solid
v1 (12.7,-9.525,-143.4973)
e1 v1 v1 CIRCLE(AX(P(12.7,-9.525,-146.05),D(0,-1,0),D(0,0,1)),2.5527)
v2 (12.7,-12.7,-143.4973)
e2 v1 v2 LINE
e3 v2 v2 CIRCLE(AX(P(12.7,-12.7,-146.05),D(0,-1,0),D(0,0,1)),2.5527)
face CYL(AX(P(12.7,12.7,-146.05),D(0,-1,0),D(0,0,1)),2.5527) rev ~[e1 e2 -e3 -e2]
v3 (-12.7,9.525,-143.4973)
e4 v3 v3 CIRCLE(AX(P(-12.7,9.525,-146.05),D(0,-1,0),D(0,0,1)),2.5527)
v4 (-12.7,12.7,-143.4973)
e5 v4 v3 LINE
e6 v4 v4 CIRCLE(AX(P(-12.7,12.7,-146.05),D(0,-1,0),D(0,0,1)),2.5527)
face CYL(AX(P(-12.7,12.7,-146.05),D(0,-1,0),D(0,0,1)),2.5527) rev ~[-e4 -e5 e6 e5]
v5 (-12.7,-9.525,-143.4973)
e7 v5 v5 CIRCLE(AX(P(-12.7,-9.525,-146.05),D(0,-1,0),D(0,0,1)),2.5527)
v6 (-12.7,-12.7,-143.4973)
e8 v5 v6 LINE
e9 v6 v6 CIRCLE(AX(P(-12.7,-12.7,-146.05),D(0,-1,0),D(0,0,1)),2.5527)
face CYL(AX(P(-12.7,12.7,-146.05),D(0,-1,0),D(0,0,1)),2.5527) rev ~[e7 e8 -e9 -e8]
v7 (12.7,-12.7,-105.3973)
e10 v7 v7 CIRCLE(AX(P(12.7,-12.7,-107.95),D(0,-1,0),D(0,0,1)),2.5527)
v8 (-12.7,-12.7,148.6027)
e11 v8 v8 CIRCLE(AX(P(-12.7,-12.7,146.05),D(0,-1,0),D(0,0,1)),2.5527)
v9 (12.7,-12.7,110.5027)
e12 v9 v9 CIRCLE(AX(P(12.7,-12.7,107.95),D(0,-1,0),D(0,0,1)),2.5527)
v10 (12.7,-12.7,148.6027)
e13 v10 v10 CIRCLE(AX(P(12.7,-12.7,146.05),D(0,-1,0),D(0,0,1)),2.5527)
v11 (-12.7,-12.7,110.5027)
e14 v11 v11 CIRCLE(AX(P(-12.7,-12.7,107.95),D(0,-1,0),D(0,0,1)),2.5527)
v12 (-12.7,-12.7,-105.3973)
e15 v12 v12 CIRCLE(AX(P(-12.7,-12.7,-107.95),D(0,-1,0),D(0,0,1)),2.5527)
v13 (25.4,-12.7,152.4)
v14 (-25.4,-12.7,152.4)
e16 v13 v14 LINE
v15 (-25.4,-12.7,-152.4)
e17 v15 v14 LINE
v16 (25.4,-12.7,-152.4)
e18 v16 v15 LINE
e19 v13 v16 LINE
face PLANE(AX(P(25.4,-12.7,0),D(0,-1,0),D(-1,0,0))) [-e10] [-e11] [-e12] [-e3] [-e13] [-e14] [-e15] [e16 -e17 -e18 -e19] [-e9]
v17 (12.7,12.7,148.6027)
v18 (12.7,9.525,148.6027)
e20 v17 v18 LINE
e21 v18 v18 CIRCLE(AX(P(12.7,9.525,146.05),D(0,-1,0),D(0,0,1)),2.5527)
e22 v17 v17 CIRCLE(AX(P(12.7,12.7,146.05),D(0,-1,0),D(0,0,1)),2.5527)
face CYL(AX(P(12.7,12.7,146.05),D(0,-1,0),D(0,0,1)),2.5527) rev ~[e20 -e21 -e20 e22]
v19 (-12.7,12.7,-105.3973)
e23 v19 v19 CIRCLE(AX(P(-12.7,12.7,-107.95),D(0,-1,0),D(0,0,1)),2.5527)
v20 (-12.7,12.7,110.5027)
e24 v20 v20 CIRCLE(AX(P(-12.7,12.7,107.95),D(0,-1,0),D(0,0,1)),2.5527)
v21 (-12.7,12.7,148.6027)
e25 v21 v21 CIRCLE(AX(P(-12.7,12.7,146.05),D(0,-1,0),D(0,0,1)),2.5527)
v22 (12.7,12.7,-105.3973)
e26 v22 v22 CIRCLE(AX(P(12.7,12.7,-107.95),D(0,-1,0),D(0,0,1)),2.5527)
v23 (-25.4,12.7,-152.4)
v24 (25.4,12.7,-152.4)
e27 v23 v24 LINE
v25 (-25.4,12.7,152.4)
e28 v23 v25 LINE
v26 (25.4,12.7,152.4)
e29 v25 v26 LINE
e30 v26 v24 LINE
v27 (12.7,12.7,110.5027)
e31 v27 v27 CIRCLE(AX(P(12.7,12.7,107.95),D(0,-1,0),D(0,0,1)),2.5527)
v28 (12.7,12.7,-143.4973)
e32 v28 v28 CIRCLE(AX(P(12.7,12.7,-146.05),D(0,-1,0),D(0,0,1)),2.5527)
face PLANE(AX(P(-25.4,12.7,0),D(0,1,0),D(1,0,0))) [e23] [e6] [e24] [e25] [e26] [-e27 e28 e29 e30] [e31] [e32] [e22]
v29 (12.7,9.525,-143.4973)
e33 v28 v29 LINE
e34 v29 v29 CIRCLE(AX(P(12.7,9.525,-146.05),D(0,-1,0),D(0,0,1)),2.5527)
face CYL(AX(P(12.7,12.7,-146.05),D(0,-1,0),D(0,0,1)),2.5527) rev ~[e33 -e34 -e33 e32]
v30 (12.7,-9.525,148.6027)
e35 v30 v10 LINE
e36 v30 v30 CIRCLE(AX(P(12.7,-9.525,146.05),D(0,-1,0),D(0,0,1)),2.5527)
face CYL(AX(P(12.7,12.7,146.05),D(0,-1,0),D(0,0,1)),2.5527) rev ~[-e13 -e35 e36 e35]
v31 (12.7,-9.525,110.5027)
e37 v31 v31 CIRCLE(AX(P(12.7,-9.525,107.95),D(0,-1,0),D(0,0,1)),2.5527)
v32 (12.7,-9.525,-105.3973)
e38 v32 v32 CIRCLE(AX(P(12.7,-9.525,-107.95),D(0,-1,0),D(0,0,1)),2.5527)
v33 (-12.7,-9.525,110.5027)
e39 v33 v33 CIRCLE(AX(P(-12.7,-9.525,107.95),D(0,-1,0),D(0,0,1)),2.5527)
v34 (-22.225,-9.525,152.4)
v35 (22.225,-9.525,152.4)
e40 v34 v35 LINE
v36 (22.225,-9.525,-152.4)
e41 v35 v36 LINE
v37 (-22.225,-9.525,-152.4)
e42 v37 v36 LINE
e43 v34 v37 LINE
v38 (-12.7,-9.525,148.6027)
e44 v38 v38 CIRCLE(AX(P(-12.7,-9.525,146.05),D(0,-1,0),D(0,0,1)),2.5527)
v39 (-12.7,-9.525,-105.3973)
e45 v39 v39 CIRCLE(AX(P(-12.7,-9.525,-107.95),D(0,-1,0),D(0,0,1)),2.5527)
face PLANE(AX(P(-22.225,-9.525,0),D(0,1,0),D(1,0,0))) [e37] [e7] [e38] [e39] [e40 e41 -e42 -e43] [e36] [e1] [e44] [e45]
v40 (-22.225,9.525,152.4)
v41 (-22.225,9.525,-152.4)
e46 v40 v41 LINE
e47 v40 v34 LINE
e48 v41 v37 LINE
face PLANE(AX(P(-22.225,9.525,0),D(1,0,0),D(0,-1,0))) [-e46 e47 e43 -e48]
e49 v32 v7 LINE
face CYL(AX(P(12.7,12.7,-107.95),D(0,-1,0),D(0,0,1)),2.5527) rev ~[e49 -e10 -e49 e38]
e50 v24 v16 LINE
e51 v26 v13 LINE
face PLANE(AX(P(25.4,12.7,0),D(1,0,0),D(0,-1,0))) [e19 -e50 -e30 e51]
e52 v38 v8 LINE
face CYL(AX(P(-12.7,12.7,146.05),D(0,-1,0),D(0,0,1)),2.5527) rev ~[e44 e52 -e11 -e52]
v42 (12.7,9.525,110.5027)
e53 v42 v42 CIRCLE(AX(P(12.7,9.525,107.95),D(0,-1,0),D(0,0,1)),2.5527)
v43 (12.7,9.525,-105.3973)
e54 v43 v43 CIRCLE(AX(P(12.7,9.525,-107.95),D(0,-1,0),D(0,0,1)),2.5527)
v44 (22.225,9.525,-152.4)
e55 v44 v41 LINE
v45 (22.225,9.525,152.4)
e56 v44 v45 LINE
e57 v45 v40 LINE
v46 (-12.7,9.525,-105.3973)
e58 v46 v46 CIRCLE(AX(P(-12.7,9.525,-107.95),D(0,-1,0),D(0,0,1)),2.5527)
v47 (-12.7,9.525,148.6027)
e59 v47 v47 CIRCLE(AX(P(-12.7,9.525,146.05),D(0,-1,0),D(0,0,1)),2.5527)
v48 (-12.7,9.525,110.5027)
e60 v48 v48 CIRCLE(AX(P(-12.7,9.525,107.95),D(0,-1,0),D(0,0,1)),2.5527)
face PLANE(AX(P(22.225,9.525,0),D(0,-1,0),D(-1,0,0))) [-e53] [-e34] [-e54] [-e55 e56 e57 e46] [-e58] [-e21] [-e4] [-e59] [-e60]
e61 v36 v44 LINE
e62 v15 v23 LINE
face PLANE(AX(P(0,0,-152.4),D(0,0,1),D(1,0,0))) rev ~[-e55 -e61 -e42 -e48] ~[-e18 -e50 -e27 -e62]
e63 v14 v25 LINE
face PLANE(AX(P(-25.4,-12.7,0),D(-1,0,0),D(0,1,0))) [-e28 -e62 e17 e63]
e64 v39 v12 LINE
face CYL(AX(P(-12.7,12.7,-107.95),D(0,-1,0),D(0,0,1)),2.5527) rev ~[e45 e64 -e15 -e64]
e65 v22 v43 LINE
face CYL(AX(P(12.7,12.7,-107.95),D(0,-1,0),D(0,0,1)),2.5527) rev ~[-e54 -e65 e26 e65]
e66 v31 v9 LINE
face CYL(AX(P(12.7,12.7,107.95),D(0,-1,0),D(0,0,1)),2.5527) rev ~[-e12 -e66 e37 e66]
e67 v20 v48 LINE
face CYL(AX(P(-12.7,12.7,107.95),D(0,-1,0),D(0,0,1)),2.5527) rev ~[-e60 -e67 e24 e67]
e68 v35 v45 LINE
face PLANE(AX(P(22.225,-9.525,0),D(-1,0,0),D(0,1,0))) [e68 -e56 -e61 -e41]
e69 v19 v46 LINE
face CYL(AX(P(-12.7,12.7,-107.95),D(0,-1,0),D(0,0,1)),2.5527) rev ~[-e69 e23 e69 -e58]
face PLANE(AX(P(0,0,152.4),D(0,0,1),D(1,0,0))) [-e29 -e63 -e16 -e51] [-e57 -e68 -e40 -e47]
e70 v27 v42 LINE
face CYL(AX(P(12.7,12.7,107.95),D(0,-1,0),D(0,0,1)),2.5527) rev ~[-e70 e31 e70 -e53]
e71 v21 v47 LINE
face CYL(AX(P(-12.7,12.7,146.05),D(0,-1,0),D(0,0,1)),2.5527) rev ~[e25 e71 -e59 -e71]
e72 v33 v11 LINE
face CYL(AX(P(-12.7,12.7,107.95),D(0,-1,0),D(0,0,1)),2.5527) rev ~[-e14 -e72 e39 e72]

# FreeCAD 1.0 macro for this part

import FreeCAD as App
import Part
import Sketcher

V = App.Vector
Q = App.Units.Quantity

doc = App.newDocument("Part")
body = doc.addObject("PartDesign::Body", "Body")

sketch1 = body.newObject("Sketcher::SketchObject", "Sketch")
sketch1.AttachmentSupport = (doc.getObject("XY_Plane"), [""])
sketch1.MapMode = "FlatFace"
sketch1.addGeometry([
    Part.LineSegment(V(25, 13, 0), V(-25, 13, 0)),
    Part.LineSegment(V(-25, 13, 0), V(-25, -13, 0)),
    Part.LineSegment(V(-25, -13, 0), V(25, -13, 0)),
    Part.LineSegment(V(25, -13, 0), V(25, 13, 0)),
    Part.LineSegment(V(-22, 10, 0), V(22, 10, 0)),
    Part.LineSegment(V(22, 10, 0), V(22, -10, 0)),
    Part.LineSegment(V(22, -10, 0), V(-22, -10, 0)),
    Part.LineSegment(V(-22, -10, 0), V(-22, 10, 0)),
], False)
sketch1.addConstraint([
    Sketcher.Constraint("Coincident", 0, 2, 1, 1),
    Sketcher.Constraint("Coincident", 1, 2, 2, 1),
    Sketcher.Constraint("Coincident", 2, 2, 3, 1),
    Sketcher.Constraint("Coincident", 3, 2, 0, 1),
    Sketcher.Constraint("Coincident", 4, 2, 5, 1),
    Sketcher.Constraint("Coincident", 5, 2, 6, 1),
    Sketcher.Constraint("Coincident", 6, 2, 7, 1),
    Sketcher.Constraint("Coincident", 7, 2, 4, 1),
    Sketcher.Constraint("Horizontal", 0),
    Sketcher.Constraint("Vertical", 1),
    Sketcher.Constraint("Horizontal", 2),
    Sketcher.Constraint("Vertical", 3),
    Sketcher.Constraint("Horizontal", 4),
    Sketcher.Constraint("Vertical", 5),
    Sketcher.Constraint("Horizontal", 6),
    Sketcher.Constraint("Vertical", 7),
    Sketcher.Constraint("Symmetric", 0, 2, 2, 2, -1, 1),
    Sketcher.Constraint("Symmetric", 4, 2, 6, 2, -1, 1),
    Sketcher.Constraint("DistanceX", 0, 2, 0, 1, Q("2 in")),
    Sketcher.Constraint("DistanceY", 1, 2, 1, 1, Q("1 in")),
    Sketcher.Constraint("DistanceX", 4, 2, 3, 2, Q("0.125 in")),
    Sketcher.Constraint("DistanceY", 4, 2, 3, 2, Q("0.125 in")),
])
pad1 = body.newObject("PartDesign::Pad", "Pad")
pad1.Profile = sketch1
pad1.Length = Q("12 in")
pad1.Midplane = True

sketch2 = body.newObject("Sketcher::SketchObject", "Sketch001")
sketch2.AttachmentSupport = (doc.getObject("XZ_Plane"), [""])
sketch2.MapMode = "FlatFace"
sketch2.AttachmentOffset = App.Placement(V(0, 0, -0.5 * 25.4), App.Rotation())
sketch2.addGeometry([
    Part.Circle(V(-12.7, 146.1, 0), V(0, 0, 1), 2.6),
    Part.Circle(V(12.7, 146.1, 0), V(0, 0, 1), 2.6),
    Part.Circle(V(12.7, 108, 0), V(0, 0, 1), 2.6),
    Part.Circle(V(-12.7, 108, 0), V(0, 0, 1), 2.6),
    Part.Circle(V(-12.7, -146.1, 0), V(0, 0, 1), 2.6),
    Part.Circle(V(12.7, -146.1, 0), V(0, 0, 1), 2.6),
    Part.Circle(V(12.7, -108, 0), V(0, 0, 1), 2.6),
    Part.Circle(V(-12.7, -108, 0), V(0, 0, 1), 2.6),
], False)
sketch2.addConstraint([
    Sketcher.Constraint("Equal", 0, 1),
    Sketcher.Constraint("Equal", 1, 2),
    Sketcher.Constraint("Equal", 2, 3),
    Sketcher.Constraint("Equal", 3, 4),
    Sketcher.Constraint("Equal", 4, 5),
    Sketcher.Constraint("Equal", 5, 6),
    Sketcher.Constraint("Equal", 6, 7),
    Sketcher.Constraint("Symmetric", 1, 3, 4, 3, -1, 1),
    Sketcher.Constraint("Symmetric", 0, 3, 5, 3, -1, 1),
    Sketcher.Constraint("Symmetric", 3, 3, 6, 3, -1, 1),
    Sketcher.Constraint("Symmetric", 2, 3, 7, 3, -1, 1),
    Sketcher.Constraint("Symmetric", 0, 3, 1, 3, -2),
    Sketcher.Constraint("Symmetric", 2, 3, 3, 3, -2),
    Sketcher.Constraint("Vertical", 1, 3, 2, 3),
    Sketcher.Constraint("Diameter", 0, Q("0.201 in")),
    Sketcher.Constraint("DistanceX", 0, 3, 1, 3, Q("1 in")),
    Sketcher.Constraint("DistanceY", 4, 3, 3, 3, Q("10 in")),
    Sketcher.Constraint("DistanceY", 2, 3, 1, 3, Q("1.5 in")),
])
doc.recompute()
hole = body.newObject("PartDesign::Hole", "Hole")
hole.Profile = sketch2
hole.ThreadType = "None"
hole.Diameter = Q("0.201 in")
hole.DepthType = "ThroughAll"
hole.Reversed = True

doc.recompute()
